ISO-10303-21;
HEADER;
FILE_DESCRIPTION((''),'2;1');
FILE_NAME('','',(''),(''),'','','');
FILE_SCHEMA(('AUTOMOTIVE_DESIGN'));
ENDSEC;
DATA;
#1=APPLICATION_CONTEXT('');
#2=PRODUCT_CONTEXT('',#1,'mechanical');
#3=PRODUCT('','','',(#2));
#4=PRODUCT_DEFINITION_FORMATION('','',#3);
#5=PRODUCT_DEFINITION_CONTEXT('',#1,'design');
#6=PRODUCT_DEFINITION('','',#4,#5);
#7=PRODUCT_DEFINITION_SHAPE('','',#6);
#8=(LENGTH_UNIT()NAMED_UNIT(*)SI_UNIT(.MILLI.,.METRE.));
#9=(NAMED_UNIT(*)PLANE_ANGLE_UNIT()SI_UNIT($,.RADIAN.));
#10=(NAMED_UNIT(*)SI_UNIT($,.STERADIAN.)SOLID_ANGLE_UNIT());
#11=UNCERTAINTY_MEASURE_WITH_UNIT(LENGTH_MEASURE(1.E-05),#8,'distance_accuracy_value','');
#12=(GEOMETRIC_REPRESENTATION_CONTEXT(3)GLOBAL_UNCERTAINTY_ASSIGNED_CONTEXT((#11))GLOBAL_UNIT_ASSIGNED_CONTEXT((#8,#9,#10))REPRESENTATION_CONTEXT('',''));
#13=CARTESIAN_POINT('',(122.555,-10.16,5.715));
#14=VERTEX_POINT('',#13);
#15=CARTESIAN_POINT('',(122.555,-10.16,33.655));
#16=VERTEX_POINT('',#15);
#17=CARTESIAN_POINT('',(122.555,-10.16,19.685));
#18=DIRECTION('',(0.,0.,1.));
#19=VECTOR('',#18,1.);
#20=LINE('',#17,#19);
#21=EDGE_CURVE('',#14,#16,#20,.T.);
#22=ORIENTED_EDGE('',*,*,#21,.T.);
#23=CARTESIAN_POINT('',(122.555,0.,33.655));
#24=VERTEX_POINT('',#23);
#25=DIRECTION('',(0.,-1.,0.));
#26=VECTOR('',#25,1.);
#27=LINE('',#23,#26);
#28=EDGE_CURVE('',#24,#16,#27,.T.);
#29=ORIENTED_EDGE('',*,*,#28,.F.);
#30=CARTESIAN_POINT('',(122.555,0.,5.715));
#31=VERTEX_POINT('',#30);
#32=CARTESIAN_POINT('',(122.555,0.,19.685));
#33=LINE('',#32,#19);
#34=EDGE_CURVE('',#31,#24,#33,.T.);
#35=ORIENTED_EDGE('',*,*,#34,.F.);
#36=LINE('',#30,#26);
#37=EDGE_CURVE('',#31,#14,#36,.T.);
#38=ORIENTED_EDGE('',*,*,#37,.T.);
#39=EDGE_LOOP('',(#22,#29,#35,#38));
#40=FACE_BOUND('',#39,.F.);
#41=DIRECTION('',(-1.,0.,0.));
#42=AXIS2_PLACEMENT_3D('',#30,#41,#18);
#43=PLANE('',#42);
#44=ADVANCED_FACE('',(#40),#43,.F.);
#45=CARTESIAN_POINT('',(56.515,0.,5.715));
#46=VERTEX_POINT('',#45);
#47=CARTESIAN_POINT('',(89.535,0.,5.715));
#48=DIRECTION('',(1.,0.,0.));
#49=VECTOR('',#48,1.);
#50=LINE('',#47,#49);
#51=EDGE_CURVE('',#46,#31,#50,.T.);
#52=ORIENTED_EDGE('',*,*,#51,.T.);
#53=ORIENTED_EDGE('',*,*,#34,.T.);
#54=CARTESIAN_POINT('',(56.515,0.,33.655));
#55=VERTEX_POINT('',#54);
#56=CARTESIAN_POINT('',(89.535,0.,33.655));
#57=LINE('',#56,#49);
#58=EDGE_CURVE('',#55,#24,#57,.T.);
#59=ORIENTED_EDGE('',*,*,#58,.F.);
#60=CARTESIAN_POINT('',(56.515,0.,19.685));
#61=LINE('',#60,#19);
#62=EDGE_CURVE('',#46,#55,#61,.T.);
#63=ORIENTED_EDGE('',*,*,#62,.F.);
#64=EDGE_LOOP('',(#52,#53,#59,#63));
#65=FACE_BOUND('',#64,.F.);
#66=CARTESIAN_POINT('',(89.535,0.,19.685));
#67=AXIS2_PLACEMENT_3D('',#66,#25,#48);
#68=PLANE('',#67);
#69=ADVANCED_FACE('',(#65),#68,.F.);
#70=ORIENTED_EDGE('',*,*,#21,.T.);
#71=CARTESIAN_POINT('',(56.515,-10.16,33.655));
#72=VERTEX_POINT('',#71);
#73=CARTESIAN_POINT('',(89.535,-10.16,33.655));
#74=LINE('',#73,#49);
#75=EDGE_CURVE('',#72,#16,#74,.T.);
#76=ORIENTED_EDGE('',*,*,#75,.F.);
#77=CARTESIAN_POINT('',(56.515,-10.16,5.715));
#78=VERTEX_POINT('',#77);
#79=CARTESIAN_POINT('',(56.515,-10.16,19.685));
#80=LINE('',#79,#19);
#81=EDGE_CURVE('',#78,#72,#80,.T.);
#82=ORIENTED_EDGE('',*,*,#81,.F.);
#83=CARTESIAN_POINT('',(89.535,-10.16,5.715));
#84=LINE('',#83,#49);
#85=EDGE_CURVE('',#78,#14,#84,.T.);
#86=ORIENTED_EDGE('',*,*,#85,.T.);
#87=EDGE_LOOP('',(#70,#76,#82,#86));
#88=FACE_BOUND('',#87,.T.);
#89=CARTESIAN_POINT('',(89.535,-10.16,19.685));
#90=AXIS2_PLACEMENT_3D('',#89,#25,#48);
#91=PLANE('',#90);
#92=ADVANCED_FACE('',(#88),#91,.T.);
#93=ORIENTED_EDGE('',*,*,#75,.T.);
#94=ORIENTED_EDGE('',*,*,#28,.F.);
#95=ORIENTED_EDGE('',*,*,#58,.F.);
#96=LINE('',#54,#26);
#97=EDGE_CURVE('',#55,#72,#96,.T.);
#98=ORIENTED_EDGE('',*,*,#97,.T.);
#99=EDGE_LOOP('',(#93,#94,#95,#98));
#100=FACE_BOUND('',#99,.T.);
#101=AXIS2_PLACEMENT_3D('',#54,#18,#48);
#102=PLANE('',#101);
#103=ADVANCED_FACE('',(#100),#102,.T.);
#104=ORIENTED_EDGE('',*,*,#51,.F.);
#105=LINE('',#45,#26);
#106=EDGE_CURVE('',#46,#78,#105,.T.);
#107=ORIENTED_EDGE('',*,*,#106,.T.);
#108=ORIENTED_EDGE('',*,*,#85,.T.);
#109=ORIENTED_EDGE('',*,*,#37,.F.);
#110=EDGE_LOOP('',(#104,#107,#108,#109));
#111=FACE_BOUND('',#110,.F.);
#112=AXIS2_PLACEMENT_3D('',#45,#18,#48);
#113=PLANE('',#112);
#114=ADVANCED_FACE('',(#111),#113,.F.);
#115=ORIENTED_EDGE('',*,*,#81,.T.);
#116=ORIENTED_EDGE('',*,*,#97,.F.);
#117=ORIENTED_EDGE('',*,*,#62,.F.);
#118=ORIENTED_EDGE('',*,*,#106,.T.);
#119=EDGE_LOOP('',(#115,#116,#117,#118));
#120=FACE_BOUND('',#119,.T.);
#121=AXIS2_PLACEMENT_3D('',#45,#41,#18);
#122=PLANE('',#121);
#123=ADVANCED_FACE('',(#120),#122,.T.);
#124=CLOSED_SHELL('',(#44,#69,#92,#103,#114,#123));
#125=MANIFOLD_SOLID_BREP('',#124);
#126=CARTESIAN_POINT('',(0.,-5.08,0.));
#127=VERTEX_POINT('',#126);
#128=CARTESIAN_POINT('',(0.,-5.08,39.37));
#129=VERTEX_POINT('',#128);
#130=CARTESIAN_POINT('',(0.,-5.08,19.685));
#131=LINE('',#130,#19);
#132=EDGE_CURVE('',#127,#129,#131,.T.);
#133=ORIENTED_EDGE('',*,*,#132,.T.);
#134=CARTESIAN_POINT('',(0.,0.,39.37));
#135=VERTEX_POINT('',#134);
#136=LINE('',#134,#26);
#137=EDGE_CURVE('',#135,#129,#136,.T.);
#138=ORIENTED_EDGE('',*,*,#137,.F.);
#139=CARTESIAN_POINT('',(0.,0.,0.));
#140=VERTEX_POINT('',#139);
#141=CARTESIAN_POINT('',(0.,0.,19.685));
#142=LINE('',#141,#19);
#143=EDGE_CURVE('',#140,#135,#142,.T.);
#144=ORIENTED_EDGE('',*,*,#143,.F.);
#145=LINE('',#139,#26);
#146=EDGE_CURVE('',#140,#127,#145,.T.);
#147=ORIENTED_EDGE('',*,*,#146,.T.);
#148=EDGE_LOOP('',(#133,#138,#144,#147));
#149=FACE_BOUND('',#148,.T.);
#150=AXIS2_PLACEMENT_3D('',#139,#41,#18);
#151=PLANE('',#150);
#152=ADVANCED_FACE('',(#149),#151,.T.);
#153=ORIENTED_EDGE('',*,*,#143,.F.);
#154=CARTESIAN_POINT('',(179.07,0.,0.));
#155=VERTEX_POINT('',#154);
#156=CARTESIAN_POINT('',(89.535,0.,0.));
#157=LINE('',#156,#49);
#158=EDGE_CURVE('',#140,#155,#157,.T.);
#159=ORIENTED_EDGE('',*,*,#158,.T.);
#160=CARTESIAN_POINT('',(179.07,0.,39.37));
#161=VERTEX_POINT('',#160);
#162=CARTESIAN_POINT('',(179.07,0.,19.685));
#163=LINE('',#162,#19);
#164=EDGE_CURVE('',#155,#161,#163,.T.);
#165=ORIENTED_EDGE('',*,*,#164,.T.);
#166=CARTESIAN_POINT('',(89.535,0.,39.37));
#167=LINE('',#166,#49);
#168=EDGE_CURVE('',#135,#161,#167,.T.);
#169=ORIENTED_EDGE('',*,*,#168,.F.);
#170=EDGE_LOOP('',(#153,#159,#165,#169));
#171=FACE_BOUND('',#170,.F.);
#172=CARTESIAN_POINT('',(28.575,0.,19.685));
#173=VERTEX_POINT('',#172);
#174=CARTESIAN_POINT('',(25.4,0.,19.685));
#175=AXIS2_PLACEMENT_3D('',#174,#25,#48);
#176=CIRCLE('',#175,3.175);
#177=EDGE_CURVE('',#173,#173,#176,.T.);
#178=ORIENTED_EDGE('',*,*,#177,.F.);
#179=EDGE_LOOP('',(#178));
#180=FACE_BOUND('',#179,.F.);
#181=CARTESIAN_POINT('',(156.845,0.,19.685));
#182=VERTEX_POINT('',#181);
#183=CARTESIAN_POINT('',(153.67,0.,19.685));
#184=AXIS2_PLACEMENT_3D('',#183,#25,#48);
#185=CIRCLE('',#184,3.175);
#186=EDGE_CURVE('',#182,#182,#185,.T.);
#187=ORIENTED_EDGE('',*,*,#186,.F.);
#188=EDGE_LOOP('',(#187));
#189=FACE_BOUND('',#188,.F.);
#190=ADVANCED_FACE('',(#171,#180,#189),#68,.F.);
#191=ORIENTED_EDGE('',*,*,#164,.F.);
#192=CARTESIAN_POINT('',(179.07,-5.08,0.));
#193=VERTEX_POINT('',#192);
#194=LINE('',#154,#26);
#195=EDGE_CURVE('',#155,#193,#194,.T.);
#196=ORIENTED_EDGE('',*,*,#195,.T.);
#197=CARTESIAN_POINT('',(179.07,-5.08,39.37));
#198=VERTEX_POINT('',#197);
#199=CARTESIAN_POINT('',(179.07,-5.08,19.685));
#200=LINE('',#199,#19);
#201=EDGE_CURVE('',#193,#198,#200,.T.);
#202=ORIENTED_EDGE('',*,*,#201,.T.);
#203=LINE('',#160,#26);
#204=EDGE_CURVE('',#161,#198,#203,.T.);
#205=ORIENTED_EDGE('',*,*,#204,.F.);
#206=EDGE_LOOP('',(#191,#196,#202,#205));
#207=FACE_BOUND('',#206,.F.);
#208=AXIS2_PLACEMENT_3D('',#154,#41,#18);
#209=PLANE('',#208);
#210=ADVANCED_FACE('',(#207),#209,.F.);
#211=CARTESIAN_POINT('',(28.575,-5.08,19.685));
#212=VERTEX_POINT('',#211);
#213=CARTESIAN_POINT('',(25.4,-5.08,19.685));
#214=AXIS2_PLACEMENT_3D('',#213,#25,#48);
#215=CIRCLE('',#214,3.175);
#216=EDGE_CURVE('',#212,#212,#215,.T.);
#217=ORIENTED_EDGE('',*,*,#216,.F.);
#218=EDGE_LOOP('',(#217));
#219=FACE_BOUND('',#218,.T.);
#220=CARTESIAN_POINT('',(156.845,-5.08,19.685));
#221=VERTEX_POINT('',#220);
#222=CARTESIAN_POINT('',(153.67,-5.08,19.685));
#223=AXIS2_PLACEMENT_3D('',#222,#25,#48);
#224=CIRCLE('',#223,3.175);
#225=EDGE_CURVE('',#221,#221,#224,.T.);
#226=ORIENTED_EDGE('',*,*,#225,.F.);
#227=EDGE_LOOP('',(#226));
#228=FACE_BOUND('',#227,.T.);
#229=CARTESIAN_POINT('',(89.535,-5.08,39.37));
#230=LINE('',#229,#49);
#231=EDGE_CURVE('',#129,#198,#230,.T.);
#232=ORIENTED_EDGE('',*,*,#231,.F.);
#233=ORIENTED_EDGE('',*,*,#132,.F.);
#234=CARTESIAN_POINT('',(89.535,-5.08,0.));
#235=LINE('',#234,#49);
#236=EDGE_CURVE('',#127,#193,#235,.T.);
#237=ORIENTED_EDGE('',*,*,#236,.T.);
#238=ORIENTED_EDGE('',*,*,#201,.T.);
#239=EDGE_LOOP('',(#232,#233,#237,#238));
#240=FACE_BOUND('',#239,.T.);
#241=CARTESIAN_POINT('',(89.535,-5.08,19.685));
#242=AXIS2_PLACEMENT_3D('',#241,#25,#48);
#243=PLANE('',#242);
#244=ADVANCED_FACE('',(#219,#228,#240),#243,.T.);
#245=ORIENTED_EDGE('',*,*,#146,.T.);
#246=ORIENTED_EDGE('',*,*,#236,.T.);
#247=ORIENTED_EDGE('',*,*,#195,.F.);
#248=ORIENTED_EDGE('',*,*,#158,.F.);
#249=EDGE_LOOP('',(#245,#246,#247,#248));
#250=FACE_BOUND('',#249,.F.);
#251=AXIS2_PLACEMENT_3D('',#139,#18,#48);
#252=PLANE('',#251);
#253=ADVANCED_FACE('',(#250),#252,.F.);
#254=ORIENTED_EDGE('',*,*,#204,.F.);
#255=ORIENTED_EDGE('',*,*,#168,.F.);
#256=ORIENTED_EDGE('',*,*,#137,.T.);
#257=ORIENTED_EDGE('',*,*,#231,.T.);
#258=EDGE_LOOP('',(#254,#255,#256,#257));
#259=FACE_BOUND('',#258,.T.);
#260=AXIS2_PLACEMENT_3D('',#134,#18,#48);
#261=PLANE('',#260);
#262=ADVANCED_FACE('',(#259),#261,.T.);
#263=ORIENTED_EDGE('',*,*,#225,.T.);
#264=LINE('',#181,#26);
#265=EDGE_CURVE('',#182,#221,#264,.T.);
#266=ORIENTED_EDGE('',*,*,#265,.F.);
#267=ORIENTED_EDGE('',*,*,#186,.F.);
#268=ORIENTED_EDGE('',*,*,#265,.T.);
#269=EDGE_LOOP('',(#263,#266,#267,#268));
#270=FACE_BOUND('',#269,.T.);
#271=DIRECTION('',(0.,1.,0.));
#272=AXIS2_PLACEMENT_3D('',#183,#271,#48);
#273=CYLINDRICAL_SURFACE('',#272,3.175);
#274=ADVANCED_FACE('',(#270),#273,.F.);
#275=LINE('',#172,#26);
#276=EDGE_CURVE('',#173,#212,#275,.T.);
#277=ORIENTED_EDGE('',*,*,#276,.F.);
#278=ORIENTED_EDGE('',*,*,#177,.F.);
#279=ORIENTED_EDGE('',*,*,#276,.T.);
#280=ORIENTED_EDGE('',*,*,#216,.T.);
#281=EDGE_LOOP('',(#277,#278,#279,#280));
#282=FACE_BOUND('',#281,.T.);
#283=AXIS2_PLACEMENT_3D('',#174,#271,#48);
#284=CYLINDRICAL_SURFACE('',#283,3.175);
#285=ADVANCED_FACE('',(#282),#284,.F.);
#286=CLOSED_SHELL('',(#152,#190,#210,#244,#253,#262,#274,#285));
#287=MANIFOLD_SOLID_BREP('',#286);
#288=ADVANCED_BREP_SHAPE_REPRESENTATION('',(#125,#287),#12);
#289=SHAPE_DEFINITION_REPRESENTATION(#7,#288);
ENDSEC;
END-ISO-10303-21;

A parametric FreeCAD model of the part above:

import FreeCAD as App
import Part
import Sketcher

V = App.Vector
Q = App.Units.Quantity


def add_polygon(sketch, points):
    """Adds a closed chain of lines whose ends are joined by coincident constraints."""
    first, n = sketch.GeometryCount, len(points)
    for a, b in zip(points, points[1:] + points[:1]):
        sketch.addGeometry(Part.LineSegment(App.Vector(*a, 0), App.Vector(*b, 0)), False)
    for i in range(n):
        sketch.addConstraint(Sketcher.Constraint("Coincident", first + i, 2, first + (i + 1) % n, 1))

doc = App.newDocument("Part")
body = doc.addObject("PartDesign::Body", "Body")

# Sketch on XZ plane
sketch1 = body.newObject("Sketcher::SketchObject", "Sketch")
sketch1.AttachmentSupport = (doc.getObject("XZ_Plane"), [""])
sketch1.MapMode = "FlatFace"
add_polygon(sketch1, [(0, 39.4), (0, 0), (179.1, 0), (179.1, 39.4)])  # lines 0-3
sketch1.addGeometry(Part.Circle(V(25.4, 19.7, 0), V(0, 0, 1), 3.2), False)  # 4
sketch1.addGeometry(Part.Circle(V(153.7, 19.7, 0), V(0, 0, 1), 3.2), False)  # 5
sketch1.addConstraint(Sketcher.Constraint("Vertical", 0))
sketch1.addConstraint(Sketcher.Constraint("Horizontal", 1))
sketch1.addConstraint(Sketcher.Constraint("Vertical", 2))
sketch1.addConstraint(Sketcher.Constraint("Horizontal", 3))
sketch1.addConstraint(Sketcher.Constraint("Coincident", 0, 2, -1, 1))
sketch1.addConstraint(Sketcher.Constraint("Equal", 4, 5))
sketch1.addConstraint(Sketcher.Constraint("Horizontal", 4, 3, 5, 3))
sketch1.addConstraint(Sketcher.Constraint("Diameter", 4, Q("0.25 in")))
sketch1.addConstraint(Sketcher.Constraint("DistanceX", -1, 1, 4, 3, Q("1 in")))
sketch1.addConstraint(Sketcher.Constraint("DistanceX", 5, 3, 1, 2, Q("1 in")))
sketch1.addConstraint(Sketcher.Constraint("DistanceX", 1, 1, 1, 2, Q("7.05 in")))
sketch1.addConstraint(Sketcher.Constraint("DistanceY", 0, 2, 0, 1, Q("1.55 in")))
sketch1.addConstraint(Sketcher.Constraint("DistanceY", -1, 1, 4, 3, Q("0.775 in")))
pad1 = body.newObject("PartDesign::Pad", "Pad")
pad1.Profile = sketch1
pad1.Length = Q("0.2 in")
body2 = doc.addObject("PartDesign::Body", "Body001")

# Sketch on XZ plane
sketch2 = body2.newObject("Sketcher::SketchObject", "Sketch001")
sketch2.AttachmentSupport = (doc.getObject("XZ_Plane001"), [""])
sketch2.MapMode = "FlatFace"
add_polygon(sketch2, [(57, 34), (57, 6), (123, 6), (123, 34)])  # lines 0-3
sketch2.addConstraint(Sketcher.Constraint("Vertical", 0))
sketch2.addConstraint(Sketcher.Constraint("Horizontal", 1))
sketch2.addConstraint(Sketcher.Constraint("Vertical", 2))
sketch2.addConstraint(Sketcher.Constraint("Horizontal", 3))
sketch2.addConstraint(Sketcher.Constraint("DistanceX", 1, 1, 1, 2, Q("2.6 in")))
sketch2.addConstraint(Sketcher.Constraint("DistanceY", 0, 2, 0, 1, Q("1.1 in")))
sketch2.addConstraint(Sketcher.Constraint("DistanceX", -1, 1, 0, 2, Q("2.225 in")))
sketch2.addConstraint(Sketcher.Constraint("DistanceY", -1, 1, 0, 2, Q("0.225 in")))
pad2 = body2.newObject("PartDesign::Pad", "Pad001")
pad2.Profile = sketch2
pad2.Length = Q("0.4 in")

doc.recompute()
